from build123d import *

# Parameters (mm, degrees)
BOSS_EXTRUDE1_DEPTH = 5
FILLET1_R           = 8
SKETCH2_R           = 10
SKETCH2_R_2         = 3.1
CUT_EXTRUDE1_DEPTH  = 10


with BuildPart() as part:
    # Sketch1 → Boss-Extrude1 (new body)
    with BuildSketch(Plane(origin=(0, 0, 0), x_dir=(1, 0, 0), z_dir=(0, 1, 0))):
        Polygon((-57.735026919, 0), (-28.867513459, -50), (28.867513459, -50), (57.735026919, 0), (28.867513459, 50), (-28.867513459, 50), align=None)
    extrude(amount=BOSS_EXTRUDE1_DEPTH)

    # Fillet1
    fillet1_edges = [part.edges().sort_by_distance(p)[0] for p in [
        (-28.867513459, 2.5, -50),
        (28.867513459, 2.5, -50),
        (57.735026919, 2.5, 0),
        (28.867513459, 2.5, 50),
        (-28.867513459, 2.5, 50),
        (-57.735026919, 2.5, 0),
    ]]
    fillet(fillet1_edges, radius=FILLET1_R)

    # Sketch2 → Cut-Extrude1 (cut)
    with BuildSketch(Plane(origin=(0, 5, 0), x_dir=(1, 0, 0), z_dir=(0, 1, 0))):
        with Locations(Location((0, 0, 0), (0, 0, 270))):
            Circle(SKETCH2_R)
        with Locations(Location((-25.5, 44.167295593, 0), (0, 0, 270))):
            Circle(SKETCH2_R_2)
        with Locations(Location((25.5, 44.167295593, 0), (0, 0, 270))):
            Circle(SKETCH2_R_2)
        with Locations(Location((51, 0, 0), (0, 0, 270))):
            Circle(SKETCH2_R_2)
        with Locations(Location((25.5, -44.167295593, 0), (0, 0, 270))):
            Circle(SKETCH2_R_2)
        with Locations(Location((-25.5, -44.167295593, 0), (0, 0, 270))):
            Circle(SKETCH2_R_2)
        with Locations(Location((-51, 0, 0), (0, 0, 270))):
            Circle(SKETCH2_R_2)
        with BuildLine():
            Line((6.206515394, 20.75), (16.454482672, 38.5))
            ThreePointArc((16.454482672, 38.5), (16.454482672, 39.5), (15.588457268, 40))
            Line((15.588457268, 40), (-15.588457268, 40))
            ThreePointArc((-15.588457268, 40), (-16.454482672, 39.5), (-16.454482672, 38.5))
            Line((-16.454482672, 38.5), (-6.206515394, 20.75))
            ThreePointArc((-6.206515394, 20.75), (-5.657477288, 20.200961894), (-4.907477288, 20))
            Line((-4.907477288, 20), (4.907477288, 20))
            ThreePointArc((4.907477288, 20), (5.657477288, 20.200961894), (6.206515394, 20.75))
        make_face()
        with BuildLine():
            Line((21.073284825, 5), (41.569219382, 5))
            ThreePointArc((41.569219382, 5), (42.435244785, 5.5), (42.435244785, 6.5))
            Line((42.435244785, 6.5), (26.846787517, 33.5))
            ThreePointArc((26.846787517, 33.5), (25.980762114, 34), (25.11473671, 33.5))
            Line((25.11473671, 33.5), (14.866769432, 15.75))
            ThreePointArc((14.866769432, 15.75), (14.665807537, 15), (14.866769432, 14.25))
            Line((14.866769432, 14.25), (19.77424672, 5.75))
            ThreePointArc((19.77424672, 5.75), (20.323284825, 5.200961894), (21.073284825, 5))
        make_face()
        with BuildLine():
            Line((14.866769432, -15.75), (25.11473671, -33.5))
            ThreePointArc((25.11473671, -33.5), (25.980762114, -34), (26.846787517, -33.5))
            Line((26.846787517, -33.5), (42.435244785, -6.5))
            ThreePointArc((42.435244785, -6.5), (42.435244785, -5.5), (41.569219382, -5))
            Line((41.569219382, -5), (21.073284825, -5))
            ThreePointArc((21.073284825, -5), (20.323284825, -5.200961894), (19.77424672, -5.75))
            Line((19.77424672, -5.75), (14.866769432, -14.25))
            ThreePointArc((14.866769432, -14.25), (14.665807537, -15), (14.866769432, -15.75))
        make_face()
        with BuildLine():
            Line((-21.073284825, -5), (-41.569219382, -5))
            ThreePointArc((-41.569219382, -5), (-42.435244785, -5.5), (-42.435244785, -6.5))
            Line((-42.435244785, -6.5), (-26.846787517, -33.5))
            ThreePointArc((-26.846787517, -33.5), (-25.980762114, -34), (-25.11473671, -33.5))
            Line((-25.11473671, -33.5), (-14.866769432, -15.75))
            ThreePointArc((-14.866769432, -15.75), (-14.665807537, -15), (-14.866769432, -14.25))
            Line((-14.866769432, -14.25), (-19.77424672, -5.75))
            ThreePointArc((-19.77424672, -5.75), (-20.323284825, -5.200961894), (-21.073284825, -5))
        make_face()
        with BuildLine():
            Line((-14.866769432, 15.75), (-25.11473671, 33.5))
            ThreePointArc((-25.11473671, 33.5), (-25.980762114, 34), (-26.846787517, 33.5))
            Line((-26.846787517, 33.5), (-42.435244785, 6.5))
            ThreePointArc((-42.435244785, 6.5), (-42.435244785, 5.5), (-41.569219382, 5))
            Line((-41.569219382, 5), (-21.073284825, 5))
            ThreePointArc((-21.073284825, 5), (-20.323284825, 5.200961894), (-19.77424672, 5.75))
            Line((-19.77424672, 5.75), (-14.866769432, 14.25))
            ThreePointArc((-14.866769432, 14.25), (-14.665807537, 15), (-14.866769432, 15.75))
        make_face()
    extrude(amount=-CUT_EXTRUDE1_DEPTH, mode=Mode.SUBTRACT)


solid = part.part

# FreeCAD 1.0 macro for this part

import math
import FreeCAD as App
import Part
import Sketcher
Q = App.Units.Quantity


def edges_at(feature, points):
    """Names of the edges that pass closest to the given points."""
    edges = feature.Shape.Edges
    near = lambda p: min(range(len(edges)), key=lambda i: edges[i].distToShape(Part.Vertex(*p))[0])
    return sorted({f"Edge{near(p) + 1}" for p in points})


def add_polygon(sketch, points):
    """Adds a closed chain of lines whose ends are joined by coincident constraints."""
    first, n = sketch.GeometryCount, len(points)
    for a, b in zip(points, points[1:] + points[:1]):
        sketch.addGeometry(Part.LineSegment(App.Vector(*a, 0), App.Vector(*b, 0)), False)
    for i in range(n):
        sketch.addConstraint(Sketcher.Constraint("Coincident", first + i, 2, first + (i + 1) % n, 1))

doc = App.newDocument("Part")
params = doc.addObject("Spreadsheet::Sheet", "Params")
for row, (alias, value) in enumerate([
    ("pad1_length", "5 mm"),
    ("fillet_radius", "8 mm"),
    ("sketch2_diameter", "20 mm"),
    ("sketch2_radius", "1 mm"),
    ("sketch2_diameter2", "6.2 mm"),
    ("sketch2_radius2", "1.5 mm"),
    ("pocket1_length", "10 mm"),
], start=1):
    params.set(f"A{row}", alias)
    params.set(f"B{row}", "=" + value)
    params.setAlias(f"B{row}", alias)

body = doc.addObject("PartDesign::Body", "Body")

# Sketch on XZ plane
sketch1 = body.newObject("Sketcher::SketchObject", "Sketch")
sketch1.AttachmentSupport = (doc.getObject("XZ_Plane"), [""])
sketch1.MapMode = "FlatFace"
add_polygon(sketch1, [(-58, 0), (-29, 50), (29, 50), (58, 0), (29, -50), (-29, -50)])  # lines 0-5
sketch1.addConstraint(Sketcher.Constraint("Horizontal", 1))
sketch1.addConstraint(Sketcher.Constraint("Horizontal", 4))
sketch1.addConstraint(Sketcher.Constraint("Symmetric", 0, 2, 3, 2, -1, 1))
sketch1.addConstraint(Sketcher.Constraint("Symmetric", 2, 2, 5, 2, -1, 1))
sketch1.addConstraint(Sketcher.Constraint("PointOnObject", 2, 2, -1))
sketch1.addConstraint(Sketcher.Constraint("Parallel", 2, 5))
sketch1.addConstraint(Sketcher.Constraint("Vertical", 1, 2, 3, 2))
sketch1.addConstraint(Sketcher.Constraint("Angle", 0, Q("60 deg")))
sketch1.addConstraint(Sketcher.Constraint("DistanceY", -1, 1, 0, 2, 50.0))
sketch1.addConstraint(Sketcher.Constraint("DistanceX", 1, 1, 1, 2, 57.735027))
pad1 = body.newObject("PartDesign::Pad", "Pad")
pad1.Profile = sketch1
pad1.setExpression("Length", "Params.pad1_length")
pad1.Reversed = True
doc.recompute()

fillet = body.newObject("PartDesign::Fillet", "Fillet")
fillet.Base = (pad1, edges_at(pad1, [
    (-28.868, 2.5, -50),
    (28.868, 2.5, -50),
    (57.735, 2.5, 0),
    (28.868, 2.5, 50),
    (-28.868, 2.5, 50),
    (-57.735, 2.5, 0),
]))
fillet.setExpression("Radius", "Params.fillet_radius")

# Sketch on XZ plane
sketch2 = body.newObject("Sketcher::SketchObject", "Sketch001")
sketch2.AttachmentSupport = (doc.getObject("XZ_Plane"), [""])
sketch2.MapMode = "FlatFace"
sketch2.AttachmentOffset = App.Placement(App.Vector(0, 0, -5), App.Rotation())
sketch2.addGeometry(Part.Circle(App.Vector(0, 0, 0), App.Vector(0, 0, 1), 10), False)
sketch2.addGeometry(Part.Circle(App.Vector(-25.5, -44.2, 0), App.Vector(0, 0, 1), 3.1), False)
sketch2.addGeometry(Part.Circle(App.Vector(25.5, -44.2, 0), App.Vector(0, 0, 1), 3.1), False)
sketch2.addGeometry(Part.Circle(App.Vector(51, 0, 0), App.Vector(0, 0, 1), 3.1), False)
sketch2.addGeometry(Part.Circle(App.Vector(25.5, 44.2, 0), App.Vector(0, 0, 1), 3.1), False)
sketch2.addGeometry(Part.Circle(App.Vector(-25.5, 44.2, 0), App.Vector(0, 0, 1), 3.1), False)
sketch2.addGeometry(Part.Circle(App.Vector(-51, 0, 0), App.Vector(0, 0, 1), 3.1), False)
sketch2.addGeometry(Part.LineSegment(App.Vector(6.2, -20.8, 0), App.Vector(16.5, -38.5, 0)), False)
sketch2.addGeometry(Part.ArcOfCircle(Part.Circle(App.Vector(15.6, -39, 0), App.Vector(0, 0, 1), 1), math.radians(-90), math.radians(30)), False)
sketch2.addGeometry(Part.LineSegment(App.Vector(15.6, -40, 0), App.Vector(-15.6, -40, 0)), False)
sketch2.addGeometry(Part.ArcOfCircle(Part.Circle(App.Vector(-15.6, -39, 0), App.Vector(0, 0, 1), 1), math.radians(150), math.radians(270)), False)
sketch2.addGeometry(Part.LineSegment(App.Vector(-16.5, -38.5, 0), App.Vector(-6.2, -20.8, 0)), False)
sketch2.addGeometry(Part.ArcOfCircle(Part.Circle(App.Vector(-4.9, -21.5, 0), App.Vector(0, 0, 1), 1.5), math.radians(90), math.radians(150)), False)
sketch2.addGeometry(Part.LineSegment(App.Vector(-4.9, -20, 0), App.Vector(4.9, -20, 0)), False)
sketch2.addGeometry(Part.ArcOfCircle(Part.Circle(App.Vector(4.9, -21.5, 0), App.Vector(0, 0, 1), 1.5), math.radians(30), math.radians(90)), False)
sketch2.addGeometry(Part.LineSegment(App.Vector(21.1, -5, 0), App.Vector(41.6, -5, 0)), False)
sketch2.addGeometry(Part.ArcOfCircle(Part.Circle(App.Vector(41.6, -6, 0), App.Vector(0, 0, 1), 1), math.radians(-30), math.radians(90)), False)
sketch2.addGeometry(Part.LineSegment(App.Vector(42.4, -6.5, 0), App.Vector(26.8, -33.5, 0)), False)
sketch2.addGeometry(Part.ArcOfCircle(Part.Circle(App.Vector(26, -33, 0), App.Vector(0, 0, 1), 1), math.radians(-150), math.radians(-30)), False)
sketch2.addGeometry(Part.LineSegment(App.Vector(25.1, -33.5, 0), App.Vector(14.9, -15.8, 0)), False)
sketch2.addGeometry(Part.ArcOfCircle(Part.Circle(App.Vector(16.2, -15, 0), App.Vector(0, 0, 1), 1.5), math.radians(150), math.radians(210)), False)
sketch2.addGeometry(Part.LineSegment(App.Vector(14.9, -14.2, 0), App.Vector(19.8, -5.8, 0)), False)
sketch2.addGeometry(Part.ArcOfCircle(Part.Circle(App.Vector(21.1, -6.5, 0), App.Vector(0, 0, 1), 1.5), math.radians(90), math.radians(150)), False)
sketch2.addGeometry(Part.LineSegment(App.Vector(14.9, 15.8, 0), App.Vector(25.1, 33.5, 0)), False)
sketch2.addGeometry(Part.ArcOfCircle(Part.Circle(App.Vector(26, 33, 0), App.Vector(0, 0, 1), 1), math.radians(30), math.radians(150)), False)
sketch2.addGeometry(Part.LineSegment(App.Vector(26.8, 33.5, 0), App.Vector(42.4, 6.5, 0)), False)
sketch2.addGeometry(Part.ArcOfCircle(Part.Circle(App.Vector(41.6, 6, 0), App.Vector(0, 0, 1), 1), math.radians(-90), math.radians(30)), False)
sketch2.addGeometry(Part.LineSegment(App.Vector(41.6, 5, 0), App.Vector(21.1, 5, 0)), False)
sketch2.addGeometry(Part.ArcOfCircle(Part.Circle(App.Vector(21.1, 6.5, 0), App.Vector(0, 0, 1), 1.5), math.radians(-150), math.radians(-90)), False)
sketch2.addGeometry(Part.LineSegment(App.Vector(19.8, 5.8, 0), App.Vector(14.9, 14.2, 0)), False)
sketch2.addGeometry(Part.ArcOfCircle(Part.Circle(App.Vector(16.2, 15, 0), App.Vector(0, 0, 1), 1.5), math.radians(150), math.radians(210)), False)
sketch2.addGeometry(Part.LineSegment(App.Vector(-21.1, 5, 0), App.Vector(-41.6, 5, 0)), False)
sketch2.addGeometry(Part.ArcOfCircle(Part.Circle(App.Vector(-41.6, 6, 0), App.Vector(0, 0, 1), 1), math.radians(150), math.radians(270)), False)
sketch2.addGeometry(Part.LineSegment(App.Vector(-42.4, 6.5, 0), App.Vector(-26.8, 33.5, 0)), False)
sketch2.addGeometry(Part.ArcOfCircle(Part.Circle(App.Vector(-26, 33, 0), App.Vector(0, 0, 1), 1), math.radians(30), math.radians(150)), False)
sketch2.addGeometry(Part.LineSegment(App.Vector(-25.1, 33.5, 0), App.Vector(-14.9, 15.8, 0)), False)
sketch2.addGeometry(Part.ArcOfCircle(Part.Circle(App.Vector(-16.2, 15, 0), App.Vector(0, 0, 1), 1.5), math.radians(-30), math.radians(30)), False)
sketch2.addGeometry(Part.LineSegment(App.Vector(-14.9, 14.2, 0), App.Vector(-19.8, 5.8, 0)), False)
sketch2.addGeometry(Part.ArcOfCircle(Part.Circle(App.Vector(-21.1, 6.5, 0), App.Vector(0, 0, 1), 1.5), math.radians(-90), math.radians(-30)), False)
sketch2.addGeometry(Part.LineSegment(App.Vector(-14.9, -15.8, 0), App.Vector(-25.1, -33.5, 0)), False)
sketch2.addGeometry(Part.ArcOfCircle(Part.Circle(App.Vector(-26, -33, 0), App.Vector(0, 0, 1), 1), math.radians(-150), math.radians(-30)), False)
sketch2.addGeometry(Part.LineSegment(App.Vector(-26.8, -33.5, 0), App.Vector(-42.4, -6.5, 0)), False)
sketch2.addGeometry(Part.ArcOfCircle(Part.Circle(App.Vector(-41.6, -6, 0), App.Vector(0, 0, 1), 1), math.radians(90), math.radians(210)), False)
sketch2.addGeometry(Part.LineSegment(App.Vector(-41.6, -5, 0), App.Vector(-21.1, -5, 0)), False)
sketch2.addGeometry(Part.ArcOfCircle(Part.Circle(App.Vector(-21.1, -6.5, 0), App.Vector(0, 0, 1), 1.5), math.radians(30), math.radians(90)), False)
sketch2.addGeometry(Part.LineSegment(App.Vector(-19.8, -5.8, 0), App.Vector(-14.9, -14.2, 0)), False)
sketch2.addGeometry(Part.ArcOfCircle(Part.Circle(App.Vector(-16.2, -15, 0), App.Vector(0, 0, 1), 1.5), math.radians(-30), math.radians(30)), False)
sketch2.addConstraint(Sketcher.Constraint("Tangent", 7, 2, 8, 2))
sketch2.addConstraint(Sketcher.Constraint("Tangent", 8, 1, 9, 1))
sketch2.addConstraint(Sketcher.Constraint("Tangent", 9, 2, 10, 2))
sketch2.addConstraint(Sketcher.Constraint("Tangent", 10, 1, 11, 1))
sketch2.addConstraint(Sketcher.Constraint("Tangent", 11, 2, 12, 2))
sketch2.addConstraint(Sketcher.Constraint("Tangent", 12, 1, 13, 1))
sketch2.addConstraint(Sketcher.Constraint("Tangent", 13, 2, 14, 2))
sketch2.addConstraint(Sketcher.Constraint("Tangent", 14, 1, 7, 1))
sketch2.addConstraint(Sketcher.Constraint("Tangent", 15, 2, 16, 2))
sketch2.addConstraint(Sketcher.Constraint("Tangent", 16, 1, 17, 1))
sketch2.addConstraint(Sketcher.Constraint("Tangent", 17, 2, 18, 2))
sketch2.addConstraint(Sketcher.Constraint("Tangent", 18, 1, 19, 1))
sketch2.addConstraint(Sketcher.Constraint("Tangent", 19, 2, 20, 2))
sketch2.addConstraint(Sketcher.Constraint("Tangent", 20, 1, 21, 1))
sketch2.addConstraint(Sketcher.Constraint("Tangent", 21, 2, 22, 2))
sketch2.addConstraint(Sketcher.Constraint("Tangent", 22, 1, 15, 1))
sketch2.addConstraint(Sketcher.Constraint("Tangent", 23, 2, 24, 2))
sketch2.addConstraint(Sketcher.Constraint("Tangent", 24, 1, 25, 1))
sketch2.addConstraint(Sketcher.Constraint("Tangent", 25, 2, 26, 2))
sketch2.addConstraint(Sketcher.Constraint("Tangent", 26, 1, 27, 1))
sketch2.addConstraint(Sketcher.Constraint("Tangent", 27, 2, 28, 2))
sketch2.addConstraint(Sketcher.Constraint("Tangent", 28, 1, 29, 1))
sketch2.addConstraint(Sketcher.Constraint("Tangent", 29, 2, 30, 2))
sketch2.addConstraint(Sketcher.Constraint("Tangent", 30, 1, 23, 1))
sketch2.addConstraint(Sketcher.Constraint("Tangent", 31, 2, 32, 2))
sketch2.addConstraint(Sketcher.Constraint("Tangent", 32, 1, 33, 1))
sketch2.addConstraint(Sketcher.Constraint("Tangent", 33, 2, 34, 2))
sketch2.addConstraint(Sketcher.Constraint("Tangent", 34, 1, 35, 1))
sketch2.addConstraint(Sketcher.Constraint("Tangent", 35, 2, 36, 2))
sketch2.addConstraint(Sketcher.Constraint("Tangent", 36, 1, 37, 1))
sketch2.addConstraint(Sketcher.Constraint("Tangent", 37, 2, 38, 2))
sketch2.addConstraint(Sketcher.Constraint("Tangent", 38, 1, 31, 1))
sketch2.addConstraint(Sketcher.Constraint("Tangent", 39, 2, 40, 2))
sketch2.addConstraint(Sketcher.Constraint("Tangent", 40, 1, 41, 1))
sketch2.addConstraint(Sketcher.Constraint("Tangent", 41, 2, 42, 2))
sketch2.addConstraint(Sketcher.Constraint("Tangent", 42, 1, 43, 1))
sketch2.addConstraint(Sketcher.Constraint("Tangent", 43, 2, 44, 2))
sketch2.addConstraint(Sketcher.Constraint("Tangent", 44, 1, 45, 1))
sketch2.addConstraint(Sketcher.Constraint("Tangent", 45, 2, 46, 2))
sketch2.addConstraint(Sketcher.Constraint("Tangent", 46, 1, 39, 1))
sketch2.addConstraint(Sketcher.Constraint("Horizontal", 9))
sketch2.addConstraint(Sketcher.Constraint("Horizontal", 13))
sketch2.addConstraint(Sketcher.Constraint("Horizontal", 15))
sketch2.addConstraint(Sketcher.Constraint("Horizontal", 27))
sketch2.addConstraint(Sketcher.Constraint("Horizontal", 31))
sketch2.addConstraint(Sketcher.Constraint("Horizontal", 43))
sketch2.addConstraint(Sketcher.Constraint("Coincident", 0, 3, -1, 1))
sketch2.addConstraint(Sketcher.Constraint("Equal", 1, 2))
sketch2.addConstraint(Sketcher.Constraint("Equal", 2, 3))
sketch2.addConstraint(Sketcher.Constraint("Equal", 3, 4))
sketch2.addConstraint(Sketcher.Constraint("Equal", 4, 5))
sketch2.addConstraint(Sketcher.Constraint("Equal", 5, 6))
sketch2.addConstraint(Sketcher.Constraint("Equal", 8, 10))
sketch2.addConstraint(Sketcher.Constraint("Equal", 12, 14))
sketch2.addConstraint(Sketcher.Constraint("Equal", 10, 16))
sketch2.addConstraint(Sketcher.Constraint("Equal", 16, 18))
sketch2.addConstraint(Sketcher.Constraint("Equal", 14, 20))
sketch2.addConstraint(Sketcher.Constraint("Equal", 20, 22))
sketch2.addConstraint(Sketcher.Constraint("Equal", 18, 24))
sketch2.addConstraint(Sketcher.Constraint("Equal", 24, 26))
sketch2.addConstraint(Sketcher.Constraint("Equal", 22, 28))
sketch2.addConstraint(Sketcher.Constraint("Equal", 28, 30))
sketch2.addConstraint(Sketcher.Constraint("Equal", 26, 32))
sketch2.addConstraint(Sketcher.Constraint("Equal", 32, 34))
sketch2.addConstraint(Sketcher.Constraint("Equal", 30, 36))
sketch2.addConstraint(Sketcher.Constraint("Equal", 36, 38))
sketch2.addConstraint(Sketcher.Constraint("Equal", 34, 40))
sketch2.addConstraint(Sketcher.Constraint("Equal", 40, 42))
sketch2.addConstraint(Sketcher.Constraint("Equal", 38, 44))
sketch2.addConstraint(Sketcher.Constraint("Equal", 44, 46))
sketch2.addConstraint(Sketcher.Constraint("Symmetric", 1, 3, 4, 3, -1, 1))
sketch2.addConstraint(Sketcher.Constraint("Symmetric", 2, 3, 5, 3, -1, 1))
sketch2.addConstraint(Sketcher.Constraint("Symmetric", 3, 3, 6, 3, -1, 1))
sketch2.addConstraint(Sketcher.Constraint("Symmetric", 16, 3, 32, 3, -1, 1))
sketch2.addConstraint(Sketcher.Constraint("Symmetric", 18, 3, 34, 3, -1, 1))
sketch2.addConstraint(Sketcher.Constraint("Symmetric", 20, 3, 36, 3, -1, 1))
sketch2.addConstraint(Sketcher.Constraint("Symmetric", 24, 3, 40, 3, -1, 1))
sketch2.addConstraint(Sketcher.Constraint("Symmetric", 26, 3, 42, 3, -1, 1))
sketch2.addConstraint(Sketcher.Constraint("Symmetric", 30, 3, 46, 3, -1, 1))
sketch2.addConstraint(Sketcher.Constraint("Symmetric", 1, 3, 2, 3, -2))
sketch2.addConstraint(Sketcher.Constraint("Symmetric", 26, 3, 32, 3, -2))
sketch2.addConstraint(Sketcher.Constraint("Symmetric", 24, 3, 34, 3, -2))
sketch2.addConstraint(Sketcher.Constraint("Symmetric", 30, 3, 36, 3, -2))
sketch2.addConstraint(Sketcher.Constraint("Symmetric", 7, 2, 10, 1, -2))
sketch2.addConstraint(Sketcher.Constraint("PointOnObject", 3, 3, -1))
sketch2.addConstraint(Sketcher.Constraint("Parallel", 11, 17))
sketch2.addConstraint(Sketcher.Constraint("Parallel", 7, 19))
sketch2.addConstraint(Sketcher.Constraint("Parallel", 17, 21))
sketch2.addConstraint(Sketcher.Constraint("Parallel", 25, 29))
sketch2.addConstraint(Sketcher.Constraint("Parallel", 33, 37))
sketch2.addConstraint(Sketcher.Constraint("Parallel", 41, 45))
sketch2.addConstraint(Sketcher.Constraint("Horizontal", 44, 3, 16, 1))
sketch2.addConstraint(Sketcher.Constraint("Equal", 11, 19))
sketch2.addConstraint(Sketcher.Constraint("Diameter", 0, 20.0))
sketch2.addConstraint(Sketcher.Constraint("Radius", 8, 1.0))
sketch2.addConstraint(Sketcher.Constraint("Diameter", 1, 6.2))
sketch2.addConstraint(Sketcher.Constraint("Radius", 12, 1.5))
sketch2.addConstraint(Sketcher.Constraint("DistanceX", -1, 1, 3, 3, 51.0))
sketch2.addConstraint(Sketcher.Constraint("DistanceY", 8, 3, -1, 1, 39.0))
sketch2.addConstraint(Sketcher.Constraint("DistanceY", 16, 3, -1, 1, 6.0))
sketch2.addConstraint(Sketcher.Constraint("DistanceY", 18, 3, -1, 1, 33.0))
sketch2.addConstraint(Sketcher.Constraint("DistanceY", 20, 3, -1, 1, 15.0))
sketch2.addConstraint(Sketcher.Constraint("DistanceX", 1, 3, -1, 1, 25.5))
sketch2.addConstraint(Sketcher.Constraint("DistanceX", 9, 2, 9, 1, 31.176915))
sketch2.addConstraint(Sketcher.Constraint("DistanceX", -1, 1, 16, 3, 41.569219))
sketch2.addConstraint(Sketcher.Constraint("DistanceY", 1, 3, -1, 1, 44.167296))
sketch2.setExpression("Constraints[93]", "Params.sketch2_diameter")
sketch2.setExpression("Constraints[94]", "Params.sketch2_radius")
sketch2.setExpression("Constraints[95]", "Params.sketch2_diameter2")
sketch2.setExpression("Constraints[96]", "Params.sketch2_radius2")
pocket1 = body.newObject("PartDesign::Pocket", "Pocket")
pocket1.Profile = sketch2
pocket1.setExpression("Length", "Params.pocket1_length")
pocket1.Reversed = True

doc.recompute()
